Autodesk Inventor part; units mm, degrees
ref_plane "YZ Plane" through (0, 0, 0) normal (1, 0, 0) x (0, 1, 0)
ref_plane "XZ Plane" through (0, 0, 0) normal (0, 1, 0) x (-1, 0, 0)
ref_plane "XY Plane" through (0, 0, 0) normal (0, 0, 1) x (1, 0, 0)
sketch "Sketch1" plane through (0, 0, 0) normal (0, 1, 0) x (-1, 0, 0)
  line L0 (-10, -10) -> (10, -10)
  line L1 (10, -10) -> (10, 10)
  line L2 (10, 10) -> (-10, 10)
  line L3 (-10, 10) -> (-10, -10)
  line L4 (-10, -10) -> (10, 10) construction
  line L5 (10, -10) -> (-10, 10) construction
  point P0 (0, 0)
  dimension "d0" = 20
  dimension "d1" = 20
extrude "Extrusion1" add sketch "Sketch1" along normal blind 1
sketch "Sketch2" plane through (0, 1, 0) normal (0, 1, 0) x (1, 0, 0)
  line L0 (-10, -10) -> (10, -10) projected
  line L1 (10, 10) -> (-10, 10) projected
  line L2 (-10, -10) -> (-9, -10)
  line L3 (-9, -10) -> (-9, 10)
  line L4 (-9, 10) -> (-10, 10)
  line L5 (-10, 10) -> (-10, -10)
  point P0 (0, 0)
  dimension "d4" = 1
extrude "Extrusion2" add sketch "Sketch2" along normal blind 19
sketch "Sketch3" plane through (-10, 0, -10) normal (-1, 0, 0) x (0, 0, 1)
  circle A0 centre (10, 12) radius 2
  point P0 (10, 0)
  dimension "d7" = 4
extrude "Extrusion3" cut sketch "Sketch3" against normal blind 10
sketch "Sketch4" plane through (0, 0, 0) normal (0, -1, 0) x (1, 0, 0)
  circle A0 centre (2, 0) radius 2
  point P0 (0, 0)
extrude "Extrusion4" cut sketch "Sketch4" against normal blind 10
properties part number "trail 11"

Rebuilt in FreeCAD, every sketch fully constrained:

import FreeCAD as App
import Part
import Sketcher
from FreeCAD import Vector


def add_polygon(sketch, points):
    """Adds a closed chain of lines whose ends are joined by coincident constraints."""
    first, n = sketch.GeometryCount, len(points)
    for a, b in zip(points, points[1:] + points[:1]):
        sketch.addGeometry(Part.LineSegment(App.Vector(*a, 0), App.Vector(*b, 0)), False)
    for i in range(n):
        sketch.addConstraint(Sketcher.Constraint("Coincident", first + i, 2, first + (i + 1) % n, 1))

doc = App.newDocument("Part")
body = doc.addObject("PartDesign::Body", "Body")

sketch1 = body.newObject("Sketcher::SketchObject", "Sketch")
sketch1.AttachmentSupport = (doc.getObject("XZ_Plane"), [""])
sketch1.MapMode = "FlatFace"
add_polygon(sketch1, [(10, 10), (10, -10), (-10, -10), (-10, 10)])
sketch1.addConstraint(Sketcher.Constraint("Vertical", 0))
sketch1.addConstraint(Sketcher.Constraint("Horizontal", 1))
sketch1.addConstraint(Sketcher.Constraint("Vertical", 2))
sketch1.addConstraint(Sketcher.Constraint("Horizontal", 3))
sketch1.addConstraint(Sketcher.Constraint("Symmetric", 0, 2, 2, 2, -1, 1))
sketch1.addConstraint(Sketcher.Constraint("Equal", 3, 0))
sketch1.addConstraint(Sketcher.Constraint("DistanceX", 1, 2, 1, 1, 20.0))
pad1 = body.newObject("PartDesign::Pad", "Pad")
pad1.Profile = sketch1
pad1.Length = 1
pad1.Reversed = True

sketch2 = body.newObject("Sketcher::SketchObject", "Sketch001")
sketch2.AttachmentSupport = (doc.getObject("XZ_Plane"), [""])
sketch2.MapMode = "FlatFace"
sketch2.AttachmentOffset = App.Placement(Vector(0, 0, -1), App.Rotation())
add_polygon(sketch2, [(-10, -10), (-10, 10), (-9, 10), (-9, -10)])
sketch2.addConstraint(Sketcher.Constraint("Vertical", 0))
sketch2.addConstraint(Sketcher.Constraint("Horizontal", 1))
sketch2.addConstraint(Sketcher.Constraint("Vertical", 2))
sketch2.addConstraint(Sketcher.Constraint("Horizontal", 3))
sketch2.addConstraint(Sketcher.Constraint("DistanceX", 1, 1, 1, 2, 1.0))
sketch2.addConstraint(Sketcher.Constraint("DistanceY", 0, 1, 0, 2, 20.0))
sketch2.addConstraint(Sketcher.Constraint("DistanceX", 0, 2, -1, 1, 10.0))
sketch2.addConstraint(Sketcher.Constraint("DistanceY", -1, 1, 0, 2, 10.0))
pad2 = body.newObject("PartDesign::Pad", "Pad001")
pad2.Profile = sketch2
pad2.Length = 19
pad2.Reversed = True

sketch3 = body.newObject("Sketcher::SketchObject", "Sketch002")
sketch3.AttachmentSupport = (doc.getObject("YZ_Plane"), [""])
sketch3.MapMode = "FlatFace"
sketch3.AttachmentOffset = App.Placement(Vector(0, 0, -10), App.Rotation())
sketch3.addGeometry(Part.Circle(Vector(12, 0, 0), Vector(0, 0, 1), 2), False)
sketch3.addConstraint(Sketcher.Constraint("PointOnObject", 0, 3, -1))
sketch3.addConstraint(Sketcher.Constraint("Diameter", 0, 4.0))
sketch3.addConstraint(Sketcher.Constraint("DistanceX", -1, 1, 0, 3, 12.0))
pocket1 = body.newObject("PartDesign::Pocket", "Pocket")
pocket1.Profile = sketch3
pocket1.Length = 10
pocket1.Reversed = True

sketch4 = body.newObject("Sketcher::SketchObject", "Sketch003")
sketch4.AttachmentSupport = (doc.getObject("XZ_Plane"), [""])
sketch4.MapMode = "FlatFace"
sketch4.addGeometry(Part.Circle(Vector(2, 0, 0), Vector(0, 0, 1), 2), False)
sketch4.addConstraint(Sketcher.Constraint("PointOnObject", 0, 3, -1))
sketch4.addConstraint(Sketcher.Constraint("Diameter", 0, 4.0))
sketch4.addConstraint(Sketcher.Constraint("DistanceX", -1, 1, 0, 3, 2.0))
pocket2 = body.newObject("PartDesign::Pocket", "Pocket001")
pocket2.Profile = sketch4
pocket2.Length = 10

doc.recompute()
